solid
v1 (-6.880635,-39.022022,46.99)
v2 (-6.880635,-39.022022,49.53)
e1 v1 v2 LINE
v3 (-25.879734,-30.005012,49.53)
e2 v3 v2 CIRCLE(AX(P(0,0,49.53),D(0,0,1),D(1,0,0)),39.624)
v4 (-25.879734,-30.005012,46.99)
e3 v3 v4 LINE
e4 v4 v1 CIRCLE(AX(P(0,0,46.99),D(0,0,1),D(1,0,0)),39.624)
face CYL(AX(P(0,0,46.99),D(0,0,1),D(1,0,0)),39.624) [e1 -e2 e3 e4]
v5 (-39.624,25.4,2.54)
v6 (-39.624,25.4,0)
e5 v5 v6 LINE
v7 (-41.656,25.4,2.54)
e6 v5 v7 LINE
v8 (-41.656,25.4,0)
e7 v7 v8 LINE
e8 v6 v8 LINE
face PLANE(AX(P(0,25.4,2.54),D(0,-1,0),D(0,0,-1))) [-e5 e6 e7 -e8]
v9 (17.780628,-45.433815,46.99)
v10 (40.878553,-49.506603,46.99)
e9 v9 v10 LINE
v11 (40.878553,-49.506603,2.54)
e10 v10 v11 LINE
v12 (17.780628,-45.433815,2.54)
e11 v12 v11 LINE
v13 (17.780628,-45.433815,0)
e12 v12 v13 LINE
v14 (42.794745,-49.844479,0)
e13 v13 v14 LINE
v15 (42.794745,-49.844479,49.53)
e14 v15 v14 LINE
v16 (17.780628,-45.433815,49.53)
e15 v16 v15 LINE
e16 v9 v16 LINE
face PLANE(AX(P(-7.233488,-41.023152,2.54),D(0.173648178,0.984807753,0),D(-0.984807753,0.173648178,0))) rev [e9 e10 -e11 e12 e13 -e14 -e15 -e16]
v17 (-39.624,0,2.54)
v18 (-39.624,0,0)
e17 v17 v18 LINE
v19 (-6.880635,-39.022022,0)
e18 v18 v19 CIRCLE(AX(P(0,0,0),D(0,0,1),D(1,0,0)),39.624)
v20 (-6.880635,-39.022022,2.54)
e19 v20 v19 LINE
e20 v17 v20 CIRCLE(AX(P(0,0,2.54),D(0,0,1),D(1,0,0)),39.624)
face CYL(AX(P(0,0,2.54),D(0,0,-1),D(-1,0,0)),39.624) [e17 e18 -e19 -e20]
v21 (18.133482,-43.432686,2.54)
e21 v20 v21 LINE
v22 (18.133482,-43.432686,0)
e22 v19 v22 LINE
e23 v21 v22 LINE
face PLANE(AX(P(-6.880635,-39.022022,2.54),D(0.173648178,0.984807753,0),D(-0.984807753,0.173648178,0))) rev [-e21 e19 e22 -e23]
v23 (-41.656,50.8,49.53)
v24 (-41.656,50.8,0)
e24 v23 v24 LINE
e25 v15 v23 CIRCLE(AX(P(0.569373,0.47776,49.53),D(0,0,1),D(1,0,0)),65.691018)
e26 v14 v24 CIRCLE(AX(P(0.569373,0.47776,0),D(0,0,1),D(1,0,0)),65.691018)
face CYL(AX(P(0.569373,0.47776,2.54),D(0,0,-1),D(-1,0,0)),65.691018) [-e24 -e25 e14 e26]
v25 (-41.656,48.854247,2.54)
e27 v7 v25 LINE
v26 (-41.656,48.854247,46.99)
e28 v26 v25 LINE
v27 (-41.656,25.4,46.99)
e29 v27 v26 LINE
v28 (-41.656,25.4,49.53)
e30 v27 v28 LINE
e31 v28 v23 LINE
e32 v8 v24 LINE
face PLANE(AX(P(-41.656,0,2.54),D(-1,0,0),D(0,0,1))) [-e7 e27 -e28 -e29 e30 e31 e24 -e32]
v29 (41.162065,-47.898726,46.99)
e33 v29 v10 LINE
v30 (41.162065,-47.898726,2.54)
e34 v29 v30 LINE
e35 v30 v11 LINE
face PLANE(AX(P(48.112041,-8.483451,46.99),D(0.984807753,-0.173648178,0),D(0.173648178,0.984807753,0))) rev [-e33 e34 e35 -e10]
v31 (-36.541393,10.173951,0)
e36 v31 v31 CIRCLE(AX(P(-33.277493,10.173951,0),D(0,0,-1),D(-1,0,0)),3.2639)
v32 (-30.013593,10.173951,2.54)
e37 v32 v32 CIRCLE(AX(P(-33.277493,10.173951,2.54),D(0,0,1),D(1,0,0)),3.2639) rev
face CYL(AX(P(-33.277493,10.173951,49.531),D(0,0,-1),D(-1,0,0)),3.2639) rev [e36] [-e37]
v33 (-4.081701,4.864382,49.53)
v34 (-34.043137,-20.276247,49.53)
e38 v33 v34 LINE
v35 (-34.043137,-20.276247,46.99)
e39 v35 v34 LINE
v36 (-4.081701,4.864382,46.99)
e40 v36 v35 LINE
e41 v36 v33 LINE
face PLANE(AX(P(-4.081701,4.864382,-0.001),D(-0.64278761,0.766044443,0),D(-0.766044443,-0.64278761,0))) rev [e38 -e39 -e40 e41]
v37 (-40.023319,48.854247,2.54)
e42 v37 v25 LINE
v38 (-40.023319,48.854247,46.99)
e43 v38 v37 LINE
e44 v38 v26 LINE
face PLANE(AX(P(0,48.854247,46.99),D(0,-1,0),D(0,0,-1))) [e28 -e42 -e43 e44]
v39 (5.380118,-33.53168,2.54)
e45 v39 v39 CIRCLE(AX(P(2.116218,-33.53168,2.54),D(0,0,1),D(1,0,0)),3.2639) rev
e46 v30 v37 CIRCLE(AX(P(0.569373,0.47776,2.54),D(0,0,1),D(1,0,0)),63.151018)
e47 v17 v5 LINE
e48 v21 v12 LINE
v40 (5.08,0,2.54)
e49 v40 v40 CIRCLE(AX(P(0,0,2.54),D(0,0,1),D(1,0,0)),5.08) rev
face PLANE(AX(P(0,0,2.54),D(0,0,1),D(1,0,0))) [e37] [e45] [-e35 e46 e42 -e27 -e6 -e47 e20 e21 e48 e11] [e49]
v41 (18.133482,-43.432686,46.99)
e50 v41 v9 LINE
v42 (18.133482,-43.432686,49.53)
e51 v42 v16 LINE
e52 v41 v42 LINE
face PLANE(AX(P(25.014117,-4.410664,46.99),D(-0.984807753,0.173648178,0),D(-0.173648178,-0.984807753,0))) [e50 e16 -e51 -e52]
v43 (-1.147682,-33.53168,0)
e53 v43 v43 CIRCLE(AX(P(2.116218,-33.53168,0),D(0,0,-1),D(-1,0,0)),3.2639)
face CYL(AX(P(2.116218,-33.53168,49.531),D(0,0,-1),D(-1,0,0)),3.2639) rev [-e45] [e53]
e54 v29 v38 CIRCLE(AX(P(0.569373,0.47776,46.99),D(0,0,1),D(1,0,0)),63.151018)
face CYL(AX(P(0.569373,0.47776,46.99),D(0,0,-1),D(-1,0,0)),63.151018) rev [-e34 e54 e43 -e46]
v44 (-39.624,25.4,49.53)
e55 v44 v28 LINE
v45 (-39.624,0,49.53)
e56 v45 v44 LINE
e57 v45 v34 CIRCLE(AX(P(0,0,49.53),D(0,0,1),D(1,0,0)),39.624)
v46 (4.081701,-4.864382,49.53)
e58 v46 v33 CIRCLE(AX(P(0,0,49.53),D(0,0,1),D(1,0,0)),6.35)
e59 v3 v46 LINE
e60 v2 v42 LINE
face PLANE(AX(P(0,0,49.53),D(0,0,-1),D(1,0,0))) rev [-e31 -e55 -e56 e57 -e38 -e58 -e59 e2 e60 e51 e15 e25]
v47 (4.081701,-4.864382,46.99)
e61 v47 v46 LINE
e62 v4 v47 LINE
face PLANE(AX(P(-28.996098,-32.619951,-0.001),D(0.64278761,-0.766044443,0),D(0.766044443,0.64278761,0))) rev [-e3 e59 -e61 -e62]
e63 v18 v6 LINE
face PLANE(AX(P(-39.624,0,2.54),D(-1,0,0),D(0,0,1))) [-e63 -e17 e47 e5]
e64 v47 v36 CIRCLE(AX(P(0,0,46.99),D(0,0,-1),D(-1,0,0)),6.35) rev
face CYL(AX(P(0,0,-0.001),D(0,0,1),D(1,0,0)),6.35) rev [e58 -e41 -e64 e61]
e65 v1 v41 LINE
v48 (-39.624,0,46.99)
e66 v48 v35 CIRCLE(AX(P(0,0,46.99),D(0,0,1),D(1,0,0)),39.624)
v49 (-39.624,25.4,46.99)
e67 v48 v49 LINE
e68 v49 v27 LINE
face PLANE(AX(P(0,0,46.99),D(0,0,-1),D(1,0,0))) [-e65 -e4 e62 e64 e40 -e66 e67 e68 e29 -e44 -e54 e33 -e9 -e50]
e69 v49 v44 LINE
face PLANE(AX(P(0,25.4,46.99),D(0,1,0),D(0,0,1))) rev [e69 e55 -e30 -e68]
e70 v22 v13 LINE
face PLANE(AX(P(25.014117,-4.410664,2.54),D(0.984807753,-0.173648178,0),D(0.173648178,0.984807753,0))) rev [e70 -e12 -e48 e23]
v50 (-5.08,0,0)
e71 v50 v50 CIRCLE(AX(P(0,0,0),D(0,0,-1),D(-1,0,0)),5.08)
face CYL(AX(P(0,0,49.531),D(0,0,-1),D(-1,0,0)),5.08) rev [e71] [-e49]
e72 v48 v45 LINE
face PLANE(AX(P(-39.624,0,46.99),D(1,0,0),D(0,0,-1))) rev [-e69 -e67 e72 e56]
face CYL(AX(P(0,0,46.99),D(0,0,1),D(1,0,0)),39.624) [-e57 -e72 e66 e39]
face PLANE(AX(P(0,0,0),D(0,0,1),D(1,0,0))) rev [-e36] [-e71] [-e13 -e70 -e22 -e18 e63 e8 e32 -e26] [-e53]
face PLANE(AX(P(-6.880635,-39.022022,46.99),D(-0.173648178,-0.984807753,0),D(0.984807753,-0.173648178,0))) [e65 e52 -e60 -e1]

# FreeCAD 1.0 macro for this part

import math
import FreeCAD as App
import Part
import Sketcher
from FreeCAD import Vector
Q = App.Units.Quantity

doc = App.newDocument("Part")
body = doc.addObject("PartDesign::Body", "Body")

sketch1 = body.newObject("Sketcher::SketchObject", "Sketch")
sketch1.AttachmentSupport = (doc.getObject("XY_Plane"), [""])
sketch1.MapMode = "FlatFace"
sketch1.addGeometry([
    Part.LineSegment(Vector(17.8, -45.4, 0), Vector(42.8, -49.8, 0)),
    Part.ArcOfCircle(Part.Circle(Vector(0.6, 0.5, 0), Vector(0, 0, 1), 65.7), math.radians(-50), math.radians(130)),
    Part.LineSegment(Vector(-41.7, 50.8, 0), Vector(-41.7, 25.4, 0)),
    Part.LineSegment(Vector(-41.7, 25.4, 0), Vector(-39.6, 25.4, 0)),
    Part.LineSegment(Vector(-39.6, 25.4, 0), Vector(-39.6, 0, 0)),
    Part.ArcOfCircle(Part.Circle(Vector(0, 0, 0), Vector(0, 0, 1), 39.6), math.radians(180), math.radians(260)),
    Part.LineSegment(Vector(-6.9, -39, 0), Vector(18.1, -43.4, 0)),
    Part.LineSegment(Vector(18.1, -43.4, 0), Vector(17.8, -45.4, 0)),
], False)
sketch1.addConstraint([
    Sketcher.Constraint("Coincident", 0, 2, 1, 1),
    Sketcher.Constraint("Coincident", 1, 2, 2, 1),
    Sketcher.Constraint("Coincident", 2, 2, 3, 1),
    Sketcher.Constraint("Coincident", 3, 2, 4, 1),
    Sketcher.Constraint("Tangent", 4, 2, 5, 1),
    Sketcher.Constraint("Tangent", 5, 2, 6, 1),
    Sketcher.Constraint("Coincident", 6, 2, 7, 1),
    Sketcher.Constraint("Coincident", 7, 2, 0, 1),
    Sketcher.Constraint("Vertical", 2),
    Sketcher.Constraint("Horizontal", 3),
    Sketcher.Constraint("Vertical", 4),
    Sketcher.Constraint("Coincident", 5, 3, -1, 1),
    Sketcher.Constraint("Parallel", 0, 6),
    Sketcher.Constraint("Perpendicular", 6, 7),
    Sketcher.Constraint("Equal", 2, 4),
    Sketcher.Constraint("Equal", 0, 6),
    Sketcher.Constraint("DistanceY", 2, 2, 2, 1, Q("1 in")),
    Sketcher.Constraint("Radius", 5, Q("1.56 in")),
    Sketcher.Constraint("Distance", 0, Q("1 in")),
    Sketcher.Constraint("Angle", 0, Q("-10 deg")),
    Sketcher.Constraint("DistanceX", 3, 1, 3, 2, Q("0.08 in")),
    Sketcher.Constraint("Distance", 7, Q("0.08 in")),
    Sketcher.Constraint("DistanceY", -1, 1, 1, 3, Q("0.47776 mm")),
])
pad1 = body.newObject("PartDesign::Pad", "Pad")
pad1.Profile = sketch1
pad1.Length = Q("0.1 in")

sketch2 = body.newObject("Sketcher::SketchObject", "Sketch001")
sketch2.AttachmentSupport = (doc.getObject("XY_Plane"), [""])
sketch2.MapMode = "FlatFace"
sketch2.AttachmentOffset = App.Placement(Vector(0, 0, 0.1 * 25.4), App.Rotation())
sketch2.addGeometry([
    Part.LineSegment(Vector(-41.7, 48.9, 0), Vector(-40, 48.9, 0)),
    Part.ArcOfCircle(Part.Circle(Vector(0.6, 0.5, 0), Vector(0, 0, 1), 63.2), math.radians(-50), math.radians(130)),
    Part.LineSegment(Vector(41.2, -47.9, 0), Vector(40.9, -49.5, 0)),
    Part.LineSegment(Vector(40.9, -49.5, 0), Vector(42.8, -49.8, 0)),
    Part.ArcOfCircle(Part.Circle(Vector(0.6, 0.5, 0), Vector(0, 0, 1), 65.7), math.radians(-50), math.radians(130)),
    Part.LineSegment(Vector(-41.7, 50.8, 0), Vector(-41.7, 48.9, 0)),
], False)
sketch2.addConstraint([
    Sketcher.Constraint("Coincident", 0, 2, 1, 2),
    Sketcher.Constraint("Coincident", 1, 1, 2, 1),
    Sketcher.Constraint("Coincident", 2, 2, 3, 1),
    Sketcher.Constraint("Coincident", 3, 2, 4, 1),
    Sketcher.Constraint("Coincident", 4, 2, 5, 1),
    Sketcher.Constraint("Coincident", 5, 2, 0, 1),
    Sketcher.Constraint("Horizontal", 0),
    Sketcher.Constraint("Vertical", 5),
    Sketcher.Constraint("Coincident", 4, 3, 1, 3),
    Sketcher.Constraint("Perpendicular", 2, 3),
    Sketcher.Constraint("DistanceY", -1, 1, 4, 2, Q("2 in")),
    Sketcher.Constraint("Angle", 2, Q("-100 deg")),
    Sketcher.Constraint("DistanceX", 4, 2, -1, 1, Q("1.64 in")),
    Sketcher.Constraint("Radius", 1, Q("63.151018 mm")),
    Sketcher.Constraint("Radius", 4, Q("65.691018 mm")),
    Sketcher.Constraint("DistanceX", 0, 1, 0, 2, Q("1.632681 mm")),
    Sketcher.Constraint("Distance", 2, Q("1.632681 mm")),
    Sketcher.Constraint("DistanceY", -1, 1, 1, 3, Q("0.47776 mm")),
    Sketcher.Constraint("DistanceY", 3, 2, -1, 1, Q("49.844479 mm")),
])
pad2 = body.newObject("PartDesign::Pad", "Pad001")
pad2.Profile = sketch2
pad2.Length = Q("1.75 in")
doc.recompute()

datumplane = body.newObject("PartDesign::Plane", "DatumPlane")
datumplane.AttachmentSupport = (doc.getObject("XY_Plane"), [""])
datumplane.MapMode = "FlatFace"
datumplane.AttachmentOffset = App.Placement(Vector(0, 0, 0.975 * 25.4), App.Rotation())
mirrored = body.newObject("PartDesign::Mirrored", "Mirrored")
mirrored.Originals = [pad1]
mirrored.MirrorPlane = (datumplane, [""])
body.Tip = mirrored

sketch3 = body.newObject("Sketcher::SketchObject", "Sketch002")
sketch3.AttachmentSupport = (doc.getObject("XY_Plane"), [""])
sketch3.MapMode = "FlatFace"
sketch3.AttachmentOffset = App.Placement(Vector(0, 0, 1.95 * 25.4), App.Rotation())
sketch3.addGeometry([
    Part.LineSegment(Vector(-4, 5, 0), Vector(-37, -23, 0)),
    Part.LineSegment(Vector(-37, -23, 0), Vector(-29, -33, 0)),
    Part.LineSegment(Vector(-29, -33, 0), Vector(4, -5, 0)),
    Part.ArcOfCircle(Part.Circle(Vector(0, 0, 0), Vector(0, 0, 1), 6), math.radians(-50), math.radians(130)),
], False)
sketch3.addConstraint([
    Sketcher.Constraint("Coincident", 0, 2, 1, 1),
    Sketcher.Constraint("Coincident", 1, 2, 2, 1),
    Sketcher.Constraint("Tangent", 2, 2, 3, 1),
    Sketcher.Constraint("Tangent", 3, 2, 0, 1),
    Sketcher.Constraint("Coincident", 3, 3, -1, 1),
    Sketcher.Constraint("Perpendicular", 0, 1),
    Sketcher.Constraint("Perpendicular", 1, 2),
    Sketcher.Constraint("Radius", 3, Q("0.25 in")),
    Sketcher.Constraint("Angle", 0, Q("-140 deg")),
    Sketcher.Constraint("Distance", 0, Q("1.7 in")),
])
pocket1 = body.newObject("PartDesign::Pocket", "Pocket")
pocket1.Profile = sketch3
pocket1.Type = "UpToFirst"

sketch4 = body.newObject("Sketcher::SketchObject", "Sketch003")
sketch4.AttachmentSupport = (doc.getObject("XY_Plane"), [""])
sketch4.MapMode = "FlatFace"
sketch4.addGeometry(Part.Circle(Vector(2.1, -33.5, 0), Vector(0, 0, 1), 3.3), False)
sketch4.addConstraint([
    Sketcher.Constraint("Diameter", 0, Q("0.257 in")),
    Sketcher.Constraint("DistanceY", 0, 3, -1, 1, Q("33.53168 mm")),
    Sketcher.Constraint("DistanceX", -1, 1, 0, 3, Q("2.116218 mm")),
])
pocket2 = body.newObject("PartDesign::Pocket", "Pocket001")
pocket2.Profile = sketch4
pocket2.Type = "UpToFirst"
pocket2.Reversed = True

sketch5 = body.newObject("Sketcher::SketchObject", "Sketch004")
sketch5.AttachmentSupport = (doc.getObject("XY_Plane"), [""])
sketch5.MapMode = "FlatFace"
sketch5.addGeometry(Part.Circle(Vector(-33.3, 10.2, 0), Vector(0, 0, 1), 3.3), False)
sketch5.addConstraint([
    Sketcher.Constraint("Diameter", 0, Q("0.257 in")),
    Sketcher.Constraint("DistanceY", -1, 1, 0, 3, Q("10.173951 mm")),
    Sketcher.Constraint("DistanceX", 0, 3, -1, 1, Q("33.277493 mm")),
])
pocket3 = body.newObject("PartDesign::Pocket", "Pocket002")
pocket3.Profile = sketch5
pocket3.Type = "UpToFirst"
pocket3.Reversed = True

sketch6 = body.newObject("Sketcher::SketchObject", "Sketch005")
sketch6.AttachmentSupport = (doc.getObject("XY_Plane"), [""])
sketch6.MapMode = "FlatFace"
sketch6.addGeometry(Part.Circle(Vector(0, 0, 0), Vector(0, 0, 1), 5), False)
sketch6.addConstraint([
    Sketcher.Constraint("Coincident", 0, 3, -1, 1),
    Sketcher.Constraint("Diameter", 0, Q("0.4 in")),
])
pocket4 = body.newObject("PartDesign::Pocket", "Pocket003")
pocket4.Profile = sketch6
pocket4.Type = "UpToFirst"
pocket4.Reversed = True

doc.recompute()
